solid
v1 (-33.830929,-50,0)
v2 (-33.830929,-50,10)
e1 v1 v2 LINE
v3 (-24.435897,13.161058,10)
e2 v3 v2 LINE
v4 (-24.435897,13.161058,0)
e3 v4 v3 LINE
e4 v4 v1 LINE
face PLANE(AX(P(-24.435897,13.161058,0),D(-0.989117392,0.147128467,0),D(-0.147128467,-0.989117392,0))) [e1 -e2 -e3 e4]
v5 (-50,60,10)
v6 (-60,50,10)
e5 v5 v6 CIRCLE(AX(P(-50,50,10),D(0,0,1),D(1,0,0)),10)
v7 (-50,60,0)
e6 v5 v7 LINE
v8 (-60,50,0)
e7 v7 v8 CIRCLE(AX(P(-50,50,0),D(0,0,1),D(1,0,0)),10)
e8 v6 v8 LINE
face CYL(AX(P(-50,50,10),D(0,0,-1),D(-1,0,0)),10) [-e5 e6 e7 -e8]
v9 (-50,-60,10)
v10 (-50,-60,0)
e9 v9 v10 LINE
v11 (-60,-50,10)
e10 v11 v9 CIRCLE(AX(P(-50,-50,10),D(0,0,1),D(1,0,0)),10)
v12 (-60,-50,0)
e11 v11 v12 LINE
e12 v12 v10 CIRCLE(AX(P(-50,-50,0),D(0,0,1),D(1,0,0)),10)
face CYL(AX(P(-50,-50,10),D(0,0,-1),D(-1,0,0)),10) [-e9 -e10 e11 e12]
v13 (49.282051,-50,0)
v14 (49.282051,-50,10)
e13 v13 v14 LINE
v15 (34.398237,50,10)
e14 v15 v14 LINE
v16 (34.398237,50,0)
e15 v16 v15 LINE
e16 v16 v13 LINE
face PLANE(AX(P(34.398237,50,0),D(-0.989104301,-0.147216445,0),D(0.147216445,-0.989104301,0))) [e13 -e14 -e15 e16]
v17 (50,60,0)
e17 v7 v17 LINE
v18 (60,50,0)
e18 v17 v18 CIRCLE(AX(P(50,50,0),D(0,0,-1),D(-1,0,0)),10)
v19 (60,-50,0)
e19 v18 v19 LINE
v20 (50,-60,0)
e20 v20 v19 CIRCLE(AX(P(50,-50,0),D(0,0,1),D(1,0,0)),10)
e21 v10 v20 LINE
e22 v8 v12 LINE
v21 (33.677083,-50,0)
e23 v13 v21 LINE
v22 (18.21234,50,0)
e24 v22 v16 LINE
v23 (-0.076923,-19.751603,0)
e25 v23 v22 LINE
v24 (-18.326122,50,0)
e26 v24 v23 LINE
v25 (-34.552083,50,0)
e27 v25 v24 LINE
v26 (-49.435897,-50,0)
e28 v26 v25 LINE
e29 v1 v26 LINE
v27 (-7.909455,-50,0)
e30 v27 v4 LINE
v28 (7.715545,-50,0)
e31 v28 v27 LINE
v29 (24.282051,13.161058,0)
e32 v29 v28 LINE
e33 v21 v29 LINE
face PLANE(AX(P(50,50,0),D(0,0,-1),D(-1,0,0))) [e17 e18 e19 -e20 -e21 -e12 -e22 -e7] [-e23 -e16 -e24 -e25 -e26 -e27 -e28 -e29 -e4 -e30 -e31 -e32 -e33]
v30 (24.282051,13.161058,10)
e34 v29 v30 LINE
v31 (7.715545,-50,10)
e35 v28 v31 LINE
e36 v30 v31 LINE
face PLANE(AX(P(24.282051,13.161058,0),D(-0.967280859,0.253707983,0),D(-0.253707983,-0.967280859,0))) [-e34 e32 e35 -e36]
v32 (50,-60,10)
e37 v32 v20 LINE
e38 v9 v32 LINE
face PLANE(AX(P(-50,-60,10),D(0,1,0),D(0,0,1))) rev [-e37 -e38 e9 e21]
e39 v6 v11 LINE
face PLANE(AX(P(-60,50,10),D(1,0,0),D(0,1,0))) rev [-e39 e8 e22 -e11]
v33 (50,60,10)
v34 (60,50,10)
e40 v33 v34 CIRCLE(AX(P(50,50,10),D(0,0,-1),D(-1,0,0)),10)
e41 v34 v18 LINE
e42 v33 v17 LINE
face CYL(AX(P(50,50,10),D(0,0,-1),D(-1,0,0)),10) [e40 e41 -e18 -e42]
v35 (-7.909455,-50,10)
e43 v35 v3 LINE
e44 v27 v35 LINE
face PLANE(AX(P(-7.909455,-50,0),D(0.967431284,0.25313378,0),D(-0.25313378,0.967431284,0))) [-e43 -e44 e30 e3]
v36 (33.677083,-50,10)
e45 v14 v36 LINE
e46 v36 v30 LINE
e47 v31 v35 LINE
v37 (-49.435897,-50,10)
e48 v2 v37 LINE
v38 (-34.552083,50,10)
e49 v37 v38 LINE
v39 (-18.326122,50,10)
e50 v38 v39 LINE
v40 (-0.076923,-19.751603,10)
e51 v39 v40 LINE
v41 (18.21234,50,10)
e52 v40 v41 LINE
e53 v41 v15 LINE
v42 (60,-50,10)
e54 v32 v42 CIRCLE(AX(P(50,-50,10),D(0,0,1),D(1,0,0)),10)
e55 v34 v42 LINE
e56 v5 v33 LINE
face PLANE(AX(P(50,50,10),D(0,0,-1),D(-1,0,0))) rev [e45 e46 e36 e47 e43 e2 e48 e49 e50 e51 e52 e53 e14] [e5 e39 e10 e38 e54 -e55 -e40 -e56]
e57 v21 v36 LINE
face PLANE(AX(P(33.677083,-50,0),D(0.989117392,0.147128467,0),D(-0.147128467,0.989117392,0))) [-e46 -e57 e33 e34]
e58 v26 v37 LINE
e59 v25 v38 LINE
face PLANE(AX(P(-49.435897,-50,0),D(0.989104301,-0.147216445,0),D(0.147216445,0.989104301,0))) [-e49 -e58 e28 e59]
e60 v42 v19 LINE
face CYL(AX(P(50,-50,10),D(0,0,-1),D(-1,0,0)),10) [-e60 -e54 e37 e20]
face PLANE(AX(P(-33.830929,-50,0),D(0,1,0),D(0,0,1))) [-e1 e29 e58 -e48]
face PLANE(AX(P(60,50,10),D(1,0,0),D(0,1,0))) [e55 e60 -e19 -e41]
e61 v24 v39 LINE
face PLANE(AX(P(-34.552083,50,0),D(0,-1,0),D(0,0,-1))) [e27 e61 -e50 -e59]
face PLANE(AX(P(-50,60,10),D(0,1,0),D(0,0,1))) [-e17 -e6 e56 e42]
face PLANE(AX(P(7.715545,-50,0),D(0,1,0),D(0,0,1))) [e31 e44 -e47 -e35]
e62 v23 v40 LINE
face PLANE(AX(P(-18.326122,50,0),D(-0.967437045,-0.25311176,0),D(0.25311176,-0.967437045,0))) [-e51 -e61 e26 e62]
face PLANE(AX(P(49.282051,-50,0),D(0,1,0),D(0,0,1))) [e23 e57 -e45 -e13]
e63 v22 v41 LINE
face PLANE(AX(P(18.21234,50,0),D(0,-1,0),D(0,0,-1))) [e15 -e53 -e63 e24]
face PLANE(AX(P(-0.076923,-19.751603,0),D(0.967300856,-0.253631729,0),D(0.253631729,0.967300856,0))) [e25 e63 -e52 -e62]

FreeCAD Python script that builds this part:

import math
import FreeCAD as App
import Part
import Sketcher

V = App.Vector
Q = App.Units.Quantity


def add_polygon(sketch, points):
    """Adds a closed chain of lines whose ends are joined by coincident constraints."""
    first, n = sketch.GeometryCount, len(points)
    for a, b in zip(points, points[1:] + points[:1]):
        sketch.addGeometry(Part.LineSegment(App.Vector(*a, 0), App.Vector(*b, 0)), False)
    for i in range(n):
        sketch.addConstraint(Sketcher.Constraint("Coincident", first + i, 2, first + (i + 1) % n, 1))

doc = App.newDocument("Part")
body = doc.addObject("PartDesign::Body", "Body")

sketch1 = doc.addObject("Sketcher::SketchObject", "Sketch")
body.addObject(sketch1)
sketch1.AttachmentSupport = (doc.XY_Plane, [""])
sketch1.MapMode = "FlatFace"
sketch1.addGeometry(Part.LineSegment(V(50, 60, 0), V(-50, 60, 0)), False)
sketch1.addGeometry(Part.ArcOfCircle(Part.Circle(V(-50, 50, 0), V(0, 0, 1), 10), math.radians(90), math.radians(180)), False)
sketch1.addGeometry(Part.LineSegment(V(-60, 50, 0), V(-60, -50, 0)), False)
sketch1.addGeometry(Part.ArcOfCircle(Part.Circle(V(-50, -50, 0), V(0, 0, 1), 10), math.radians(180), math.radians(270)), False)
sketch1.addGeometry(Part.LineSegment(V(-50, -60, 0), V(50, -60, 0)), False)
sketch1.addGeometry(Part.ArcOfCircle(Part.Circle(V(50, -50, 0), V(0, 0, 1), 10), math.radians(-90), math.radians(0)), False)
sketch1.addGeometry(Part.LineSegment(V(60, -50, 0), V(60, 50, 0)), False)
sketch1.addGeometry(Part.ArcOfCircle(Part.Circle(V(50, 50, 0), V(0, 0, 1), 10), math.radians(0), math.radians(90)), False)
sketch1.addConstraint(Sketcher.Constraint("Tangent", 0, 2, 1, 1))
sketch1.addConstraint(Sketcher.Constraint("Tangent", 1, 2, 2, 1))
sketch1.addConstraint(Sketcher.Constraint("Tangent", 2, 2, 3, 1))
sketch1.addConstraint(Sketcher.Constraint("Tangent", 3, 2, 4, 1))
sketch1.addConstraint(Sketcher.Constraint("Tangent", 4, 2, 5, 1))
sketch1.addConstraint(Sketcher.Constraint("Tangent", 5, 2, 6, 1))
sketch1.addConstraint(Sketcher.Constraint("Tangent", 6, 2, 7, 1))
sketch1.addConstraint(Sketcher.Constraint("Tangent", 7, 2, 0, 1))
sketch1.addConstraint(Sketcher.Constraint("Horizontal", 0))
sketch1.addConstraint(Sketcher.Constraint("Vertical", 2))
sketch1.addConstraint(Sketcher.Constraint("Horizontal", 4))
sketch1.addConstraint(Sketcher.Constraint("Vertical", 6))
sketch1.addConstraint(Sketcher.Constraint("Equal", 1, 3))
sketch1.addConstraint(Sketcher.Constraint("Equal", 3, 5))
sketch1.addConstraint(Sketcher.Constraint("Equal", 5, 7))
sketch1.addConstraint(Sketcher.Constraint("Symmetric", 1, 3, 5, 3, -1, 1))
sketch1.addConstraint(Sketcher.Constraint("Equal", 4, 2))
sketch1.addConstraint(Sketcher.Constraint("Radius", 1, Q("10 mm")))
sketch1.addConstraint(Sketcher.Constraint("DistanceX", 0, 2, 0, 1, Q("100 mm")))
pad1 = doc.addObject("PartDesign::Pad", "Pad")
body.addObject(pad1)
pad1.Profile = sketch1
pad1.Length = 10

sketch2 = doc.addObject("Sketcher::SketchObject", "Sketch001")
body.addObject(sketch2)
sketch2.AttachmentSupport = (doc.XY_Plane, [""])
sketch2.MapMode = "FlatFace"
sketch2.AttachmentOffset = App.Placement(V(0, 0, 10), App.Rotation())
add_polygon(sketch2, [(-18, 50), (-35, 50), (-49, -50), (-34, -50), (-24, 13), (-8, -50), (8, -50), (24, 13), (34, -50), (49, -50), (34, 50), (18, 50), (0, -20)])
sketch2.addConstraint(Sketcher.Constraint("Horizontal", 0))
sketch2.addConstraint(Sketcher.Constraint("Horizontal", 2))
sketch2.addConstraint(Sketcher.Constraint("Horizontal", 5))
sketch2.addConstraint(Sketcher.Constraint("Horizontal", 8))
sketch2.addConstraint(Sketcher.Constraint("Horizontal", 10))
sketch2.addConstraint(Sketcher.Constraint("Horizontal", 2, 2, 4, 2))
sketch2.addConstraint(Sketcher.Constraint("Horizontal", 3, 2, 6, 2))
sketch2.addConstraint(Sketcher.Constraint("Horizontal", 5, 2, 7, 2))
sketch2.addConstraint(Sketcher.Constraint("Horizontal", 0, 2, 9, 2))
sketch2.addConstraint(Sketcher.Constraint("Equal", 2, 8))
sketch2.addConstraint(Sketcher.Constraint("Equal", 3, 7))
sketch2.addConstraint(Sketcher.Constraint("Equal", 1, 9))
sketch2.addConstraint(Sketcher.Constraint("DistanceY", -1, 1, 0, 2, Q("50 mm")))
sketch2.addConstraint(Sketcher.Constraint("DistanceY", 1, 2, -1, 1, Q("50 mm")))
sketch2.addConstraint(Sketcher.Constraint("DistanceX", 1, 2, 3, 2, Q("25 mm")))
sketch2.addConstraint(Sketcher.Constraint("DistanceX", 5, 1, 5, 2, Q("15.625 mm")))
sketch2.addConstraint(Sketcher.Constraint("DistanceX", 0, 2, 0, 1, Q("16.225962 mm")))
sketch2.addConstraint(Sketcher.Constraint("Distance", 12, Q("72.099371 mm")))
sketch2.addConstraint(Sketcher.Constraint("DistanceX", 2, 1, 2, 2, Q("15.604968 mm")))
sketch2.addConstraint(Sketcher.Constraint("DistanceX", 10, 2, 10, 1, Q("16.185897 mm")))
sketch2.addConstraint(Sketcher.Constraint("DistanceX", 2, 2, -1, 1, Q("33.830929 mm")))
sketch2.addConstraint(Sketcher.Constraint("DistanceX", -1, 1, 6, 2, Q("24.282051 mm")))
sketch2.addConstraint(Sketcher.Constraint("DistanceX", -1, 1, 10, 2, Q("18.21234 mm")))
sketch2.addConstraint(Sketcher.Constraint("DistanceX", 0, 2, 4, 2, Q("26.642628 mm")))
sketch2.addConstraint(Sketcher.Constraint("DistanceY", 11, 2, 3, 2, Q("32.91266 mm")))
sketch2.addConstraint(Sketcher.Constraint("Distance", 3, Q("63.855977 mm")))
pocket1 = doc.addObject("PartDesign::Pocket", "Pocket")
body.addObject(pocket1)
pocket1.Profile = sketch2
pocket1.Length = 10

doc.recompute()
